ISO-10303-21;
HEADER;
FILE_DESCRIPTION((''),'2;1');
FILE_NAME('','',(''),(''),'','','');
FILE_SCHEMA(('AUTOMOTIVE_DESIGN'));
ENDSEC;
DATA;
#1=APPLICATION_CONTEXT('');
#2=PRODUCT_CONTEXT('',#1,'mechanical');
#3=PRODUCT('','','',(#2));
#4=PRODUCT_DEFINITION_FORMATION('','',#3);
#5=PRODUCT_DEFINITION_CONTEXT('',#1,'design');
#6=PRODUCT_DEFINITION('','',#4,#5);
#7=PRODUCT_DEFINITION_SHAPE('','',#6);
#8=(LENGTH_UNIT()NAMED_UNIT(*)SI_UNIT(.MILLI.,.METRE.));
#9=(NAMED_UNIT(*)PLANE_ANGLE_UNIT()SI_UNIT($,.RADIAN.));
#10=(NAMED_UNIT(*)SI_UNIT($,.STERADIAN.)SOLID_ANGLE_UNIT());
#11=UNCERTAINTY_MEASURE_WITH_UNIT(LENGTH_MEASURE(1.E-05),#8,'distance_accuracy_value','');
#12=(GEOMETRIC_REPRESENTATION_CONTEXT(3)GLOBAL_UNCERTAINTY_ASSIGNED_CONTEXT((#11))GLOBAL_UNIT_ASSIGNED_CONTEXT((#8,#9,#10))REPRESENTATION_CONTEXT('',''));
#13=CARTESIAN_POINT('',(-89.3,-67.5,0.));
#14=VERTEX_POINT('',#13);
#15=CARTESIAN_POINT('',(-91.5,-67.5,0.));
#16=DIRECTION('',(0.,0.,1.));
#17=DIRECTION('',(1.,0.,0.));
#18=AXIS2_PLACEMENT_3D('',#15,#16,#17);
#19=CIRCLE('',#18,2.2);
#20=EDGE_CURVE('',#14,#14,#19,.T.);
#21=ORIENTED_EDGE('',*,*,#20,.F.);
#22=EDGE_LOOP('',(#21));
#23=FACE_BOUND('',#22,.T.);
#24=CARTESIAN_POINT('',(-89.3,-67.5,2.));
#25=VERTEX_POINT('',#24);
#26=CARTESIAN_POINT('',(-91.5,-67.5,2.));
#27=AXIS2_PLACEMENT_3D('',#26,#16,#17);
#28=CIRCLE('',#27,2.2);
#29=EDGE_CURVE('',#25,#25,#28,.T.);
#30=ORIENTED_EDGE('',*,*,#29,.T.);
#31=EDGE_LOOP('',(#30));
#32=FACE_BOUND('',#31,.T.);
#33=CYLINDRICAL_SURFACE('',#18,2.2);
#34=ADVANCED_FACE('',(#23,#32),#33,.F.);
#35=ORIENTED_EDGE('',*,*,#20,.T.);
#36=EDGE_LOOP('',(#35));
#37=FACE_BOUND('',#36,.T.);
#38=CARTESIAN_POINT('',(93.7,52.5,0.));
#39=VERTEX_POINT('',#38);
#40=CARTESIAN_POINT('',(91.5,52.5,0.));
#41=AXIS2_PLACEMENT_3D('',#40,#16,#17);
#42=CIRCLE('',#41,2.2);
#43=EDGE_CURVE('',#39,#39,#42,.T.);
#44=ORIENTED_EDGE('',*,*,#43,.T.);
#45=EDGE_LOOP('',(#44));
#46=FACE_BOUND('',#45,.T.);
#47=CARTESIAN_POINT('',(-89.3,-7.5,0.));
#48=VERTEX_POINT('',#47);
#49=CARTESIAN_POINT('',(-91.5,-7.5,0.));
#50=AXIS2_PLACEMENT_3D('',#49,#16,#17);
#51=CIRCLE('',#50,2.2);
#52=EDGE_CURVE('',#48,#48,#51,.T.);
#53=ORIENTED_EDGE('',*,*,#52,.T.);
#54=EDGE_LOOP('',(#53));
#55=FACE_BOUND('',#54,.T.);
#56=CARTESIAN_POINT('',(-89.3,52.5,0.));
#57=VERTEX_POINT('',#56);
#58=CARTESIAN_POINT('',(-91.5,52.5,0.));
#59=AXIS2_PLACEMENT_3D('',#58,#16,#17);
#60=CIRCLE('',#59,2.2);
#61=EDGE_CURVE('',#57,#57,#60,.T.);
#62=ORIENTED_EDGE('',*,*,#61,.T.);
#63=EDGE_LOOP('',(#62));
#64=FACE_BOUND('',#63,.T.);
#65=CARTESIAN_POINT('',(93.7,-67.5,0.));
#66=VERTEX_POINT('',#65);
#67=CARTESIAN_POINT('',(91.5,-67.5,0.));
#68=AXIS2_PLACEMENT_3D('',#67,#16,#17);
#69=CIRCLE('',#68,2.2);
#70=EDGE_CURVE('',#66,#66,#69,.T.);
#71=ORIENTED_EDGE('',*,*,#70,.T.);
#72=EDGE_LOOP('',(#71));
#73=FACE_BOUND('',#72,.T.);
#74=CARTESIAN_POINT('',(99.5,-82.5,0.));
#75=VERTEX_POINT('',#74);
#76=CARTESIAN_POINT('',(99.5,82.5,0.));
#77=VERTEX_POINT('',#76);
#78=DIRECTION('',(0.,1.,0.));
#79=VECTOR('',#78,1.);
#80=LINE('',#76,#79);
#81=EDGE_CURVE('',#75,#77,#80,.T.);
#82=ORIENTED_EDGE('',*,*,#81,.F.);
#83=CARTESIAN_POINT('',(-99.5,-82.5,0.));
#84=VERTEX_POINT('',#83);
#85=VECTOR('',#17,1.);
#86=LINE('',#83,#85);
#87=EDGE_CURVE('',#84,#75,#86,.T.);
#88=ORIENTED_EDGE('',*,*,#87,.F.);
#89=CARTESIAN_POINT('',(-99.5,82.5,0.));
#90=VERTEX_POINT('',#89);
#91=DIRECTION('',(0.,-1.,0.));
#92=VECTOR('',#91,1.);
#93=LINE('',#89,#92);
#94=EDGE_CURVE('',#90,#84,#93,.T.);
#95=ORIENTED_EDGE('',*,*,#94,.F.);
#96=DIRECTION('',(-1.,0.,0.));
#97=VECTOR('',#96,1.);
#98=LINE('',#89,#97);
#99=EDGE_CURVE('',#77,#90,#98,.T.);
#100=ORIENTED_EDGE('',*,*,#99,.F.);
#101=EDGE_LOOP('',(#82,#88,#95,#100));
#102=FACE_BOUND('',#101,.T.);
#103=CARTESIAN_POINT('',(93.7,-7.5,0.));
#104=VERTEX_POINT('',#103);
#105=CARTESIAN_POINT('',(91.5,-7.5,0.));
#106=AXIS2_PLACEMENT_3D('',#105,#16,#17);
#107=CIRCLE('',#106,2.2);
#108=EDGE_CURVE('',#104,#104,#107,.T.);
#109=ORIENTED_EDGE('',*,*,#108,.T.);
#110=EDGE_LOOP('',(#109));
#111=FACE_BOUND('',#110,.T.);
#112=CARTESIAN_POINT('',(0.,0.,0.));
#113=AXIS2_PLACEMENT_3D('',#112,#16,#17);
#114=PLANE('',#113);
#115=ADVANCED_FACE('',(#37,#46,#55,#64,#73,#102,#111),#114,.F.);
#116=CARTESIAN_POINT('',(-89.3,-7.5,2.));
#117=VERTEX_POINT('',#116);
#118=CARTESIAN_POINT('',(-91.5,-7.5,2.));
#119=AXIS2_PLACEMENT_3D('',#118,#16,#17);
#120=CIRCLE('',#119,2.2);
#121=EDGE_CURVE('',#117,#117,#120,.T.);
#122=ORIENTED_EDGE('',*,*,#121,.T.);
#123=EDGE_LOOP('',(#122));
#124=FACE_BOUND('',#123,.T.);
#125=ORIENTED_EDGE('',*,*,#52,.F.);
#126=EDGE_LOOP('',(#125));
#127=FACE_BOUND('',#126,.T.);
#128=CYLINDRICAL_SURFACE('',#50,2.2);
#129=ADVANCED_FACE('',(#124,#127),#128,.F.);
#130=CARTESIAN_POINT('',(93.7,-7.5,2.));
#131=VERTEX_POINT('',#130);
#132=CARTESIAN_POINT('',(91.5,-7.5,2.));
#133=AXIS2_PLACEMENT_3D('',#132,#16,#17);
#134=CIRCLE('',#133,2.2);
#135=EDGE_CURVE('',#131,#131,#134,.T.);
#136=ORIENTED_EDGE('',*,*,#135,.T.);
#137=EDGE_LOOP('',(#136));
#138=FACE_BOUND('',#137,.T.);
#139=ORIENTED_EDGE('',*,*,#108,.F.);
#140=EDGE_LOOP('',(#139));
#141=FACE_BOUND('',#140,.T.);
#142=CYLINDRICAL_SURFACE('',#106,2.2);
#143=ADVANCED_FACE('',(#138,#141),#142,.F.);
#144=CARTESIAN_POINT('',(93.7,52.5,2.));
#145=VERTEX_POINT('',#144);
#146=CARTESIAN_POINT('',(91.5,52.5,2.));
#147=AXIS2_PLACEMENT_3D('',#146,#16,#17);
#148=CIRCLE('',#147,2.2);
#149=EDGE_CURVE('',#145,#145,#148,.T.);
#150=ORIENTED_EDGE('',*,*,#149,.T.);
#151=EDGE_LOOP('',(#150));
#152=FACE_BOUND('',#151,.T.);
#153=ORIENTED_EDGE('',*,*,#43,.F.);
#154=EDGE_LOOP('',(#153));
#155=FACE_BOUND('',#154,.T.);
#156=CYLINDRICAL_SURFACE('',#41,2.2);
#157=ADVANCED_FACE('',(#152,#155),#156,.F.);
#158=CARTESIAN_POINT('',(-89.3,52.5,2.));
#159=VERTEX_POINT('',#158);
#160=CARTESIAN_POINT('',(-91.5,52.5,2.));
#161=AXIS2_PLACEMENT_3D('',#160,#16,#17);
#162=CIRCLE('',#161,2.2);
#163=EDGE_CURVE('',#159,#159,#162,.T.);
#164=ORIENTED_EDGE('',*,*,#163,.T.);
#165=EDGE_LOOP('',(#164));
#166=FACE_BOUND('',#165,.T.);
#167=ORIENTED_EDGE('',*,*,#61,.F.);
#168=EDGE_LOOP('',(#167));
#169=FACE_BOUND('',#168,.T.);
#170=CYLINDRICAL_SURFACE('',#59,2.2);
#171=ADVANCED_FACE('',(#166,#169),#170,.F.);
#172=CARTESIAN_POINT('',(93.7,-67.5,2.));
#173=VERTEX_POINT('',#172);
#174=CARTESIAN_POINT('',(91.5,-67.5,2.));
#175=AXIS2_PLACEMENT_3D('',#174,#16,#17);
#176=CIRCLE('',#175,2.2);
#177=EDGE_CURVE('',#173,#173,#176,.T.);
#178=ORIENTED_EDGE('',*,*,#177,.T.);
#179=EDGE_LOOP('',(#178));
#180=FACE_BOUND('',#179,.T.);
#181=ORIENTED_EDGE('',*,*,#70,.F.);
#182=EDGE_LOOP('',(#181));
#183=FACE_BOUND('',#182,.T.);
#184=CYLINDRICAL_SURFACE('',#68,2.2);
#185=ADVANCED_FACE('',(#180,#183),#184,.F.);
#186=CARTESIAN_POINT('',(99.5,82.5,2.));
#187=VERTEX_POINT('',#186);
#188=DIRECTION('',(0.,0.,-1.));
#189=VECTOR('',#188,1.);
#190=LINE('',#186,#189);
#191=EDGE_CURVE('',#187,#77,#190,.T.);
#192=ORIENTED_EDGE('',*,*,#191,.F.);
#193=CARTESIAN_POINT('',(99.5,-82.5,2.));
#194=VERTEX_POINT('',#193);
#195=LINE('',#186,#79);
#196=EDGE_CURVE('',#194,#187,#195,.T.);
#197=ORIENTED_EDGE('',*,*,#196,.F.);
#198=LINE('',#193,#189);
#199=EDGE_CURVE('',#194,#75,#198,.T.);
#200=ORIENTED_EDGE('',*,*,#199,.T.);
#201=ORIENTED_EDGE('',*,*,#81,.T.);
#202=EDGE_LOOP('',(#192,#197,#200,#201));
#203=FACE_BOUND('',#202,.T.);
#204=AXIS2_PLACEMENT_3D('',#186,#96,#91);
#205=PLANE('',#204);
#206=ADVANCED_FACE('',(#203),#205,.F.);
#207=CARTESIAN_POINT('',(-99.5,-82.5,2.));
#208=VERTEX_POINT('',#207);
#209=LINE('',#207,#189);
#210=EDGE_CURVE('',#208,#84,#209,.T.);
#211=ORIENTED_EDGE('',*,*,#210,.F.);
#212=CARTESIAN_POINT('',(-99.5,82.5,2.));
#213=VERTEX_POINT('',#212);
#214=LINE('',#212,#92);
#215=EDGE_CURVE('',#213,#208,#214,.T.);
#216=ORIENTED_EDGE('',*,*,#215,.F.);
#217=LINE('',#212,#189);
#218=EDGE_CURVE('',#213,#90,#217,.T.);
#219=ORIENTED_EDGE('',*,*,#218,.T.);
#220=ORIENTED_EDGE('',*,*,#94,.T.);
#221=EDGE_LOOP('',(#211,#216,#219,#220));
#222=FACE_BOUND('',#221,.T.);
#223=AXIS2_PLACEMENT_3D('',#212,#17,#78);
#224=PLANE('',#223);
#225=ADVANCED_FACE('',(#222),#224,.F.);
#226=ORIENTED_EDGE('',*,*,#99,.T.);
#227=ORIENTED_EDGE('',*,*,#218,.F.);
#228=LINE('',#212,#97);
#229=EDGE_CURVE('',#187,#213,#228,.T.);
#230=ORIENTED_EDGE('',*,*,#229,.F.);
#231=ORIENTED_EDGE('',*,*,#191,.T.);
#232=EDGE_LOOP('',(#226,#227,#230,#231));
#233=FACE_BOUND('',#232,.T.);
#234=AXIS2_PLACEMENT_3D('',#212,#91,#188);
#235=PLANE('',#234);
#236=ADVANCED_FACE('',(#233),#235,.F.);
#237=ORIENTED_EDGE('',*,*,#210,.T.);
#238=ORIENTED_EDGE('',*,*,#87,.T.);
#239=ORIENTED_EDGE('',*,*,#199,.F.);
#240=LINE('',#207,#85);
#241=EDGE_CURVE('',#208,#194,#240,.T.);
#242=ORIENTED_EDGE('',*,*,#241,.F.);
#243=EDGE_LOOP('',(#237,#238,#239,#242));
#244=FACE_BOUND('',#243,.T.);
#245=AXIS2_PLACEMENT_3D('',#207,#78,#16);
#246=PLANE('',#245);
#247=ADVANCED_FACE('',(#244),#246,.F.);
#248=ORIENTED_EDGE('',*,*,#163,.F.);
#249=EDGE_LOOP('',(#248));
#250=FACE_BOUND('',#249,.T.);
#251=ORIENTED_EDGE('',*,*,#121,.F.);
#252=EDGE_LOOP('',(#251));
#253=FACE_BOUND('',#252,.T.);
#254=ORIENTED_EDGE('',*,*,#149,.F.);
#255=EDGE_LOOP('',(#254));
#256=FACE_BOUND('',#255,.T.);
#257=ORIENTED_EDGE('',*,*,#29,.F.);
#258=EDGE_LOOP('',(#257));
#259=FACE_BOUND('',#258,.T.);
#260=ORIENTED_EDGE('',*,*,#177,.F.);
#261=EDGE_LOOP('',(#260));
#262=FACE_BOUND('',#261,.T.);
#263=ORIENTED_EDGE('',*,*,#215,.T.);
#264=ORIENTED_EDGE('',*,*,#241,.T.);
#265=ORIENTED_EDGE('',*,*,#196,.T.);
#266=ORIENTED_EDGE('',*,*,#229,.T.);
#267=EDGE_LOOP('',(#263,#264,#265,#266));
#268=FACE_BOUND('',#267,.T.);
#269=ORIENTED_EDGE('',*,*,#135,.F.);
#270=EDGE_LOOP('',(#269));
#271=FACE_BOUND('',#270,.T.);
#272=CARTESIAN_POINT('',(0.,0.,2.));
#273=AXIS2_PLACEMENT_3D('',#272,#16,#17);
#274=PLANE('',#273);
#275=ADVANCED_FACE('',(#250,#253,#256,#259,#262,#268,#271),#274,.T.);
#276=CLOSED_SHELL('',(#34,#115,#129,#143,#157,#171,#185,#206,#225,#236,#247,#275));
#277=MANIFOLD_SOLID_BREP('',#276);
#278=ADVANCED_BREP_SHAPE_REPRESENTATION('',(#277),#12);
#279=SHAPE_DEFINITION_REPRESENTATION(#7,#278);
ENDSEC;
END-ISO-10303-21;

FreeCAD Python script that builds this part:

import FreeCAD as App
import Part
import Sketcher

V = App.Vector
Q = App.Units.Quantity

doc = App.newDocument("Part")
params = doc.addObject("Spreadsheet::Sheet", "Params")
for row, (alias, value) in enumerate([
    ("sketch1_width", "199 mm"),
    ("sketch1_height", "165 mm"),
    ("pad1_length", "2 mm"),
    ("sketch2_diameter", "4.4 mm"),
    ("pocket1_length", "2 mm"),
    ("sketch3_diameter", "4.4 mm"),
    ("pocket2_length", "2 mm"),
], start=1):
    params.set(f"A{row}", alias)
    params.set(f"B{row}", "=" + value)
    params.setAlias(f"B{row}", alias)

body = doc.addObject("PartDesign::Body", "Body")

# Sketch on XY plane
sketch1 = doc.addObject("Sketcher::SketchObject", "Sketch")
body.addObject(sketch1)
sketch1.AttachmentSupport = (doc.XY_Plane, [""])
sketch1.MapMode = "FlatFace"
sketch1.addGeometry(Part.LineSegment(V(-100, 82, 0), V(-100, -82, 0)), False)
sketch1.addGeometry(Part.LineSegment(V(-100, -82, 0), V(100, -82, 0)), False)
sketch1.addGeometry(Part.LineSegment(V(100, -82, 0), V(100, 82, 0)), False)
sketch1.addGeometry(Part.LineSegment(V(100, 82, 0), V(-100, 82, 0)), False)
sketch1.addConstraint(Sketcher.Constraint("Coincident", 0, 2, 1, 1))
sketch1.addConstraint(Sketcher.Constraint("Coincident", 1, 2, 2, 1))
sketch1.addConstraint(Sketcher.Constraint("Coincident", 2, 2, 3, 1))
sketch1.addConstraint(Sketcher.Constraint("Coincident", 3, 2, 0, 1))
sketch1.addConstraint(Sketcher.Constraint("Vertical", 0))
sketch1.addConstraint(Sketcher.Constraint("Horizontal", 1))
sketch1.addConstraint(Sketcher.Constraint("Vertical", 2))
sketch1.addConstraint(Sketcher.Constraint("Horizontal", 3))
sketch1.addConstraint(Sketcher.Constraint("Symmetric", 0, 2, 2, 2, -1, 1))
sketch1.addConstraint(Sketcher.Constraint("DistanceX", 1, 1, 1, 2, Q("199 mm")))
sketch1.addConstraint(Sketcher.Constraint("DistanceY", 0, 2, 0, 1, Q("165 mm")))
sketch1.setExpression("Constraints[9]", "Params.sketch1_width")
sketch1.setExpression("Constraints[10]", "Params.sketch1_height")
pad1 = doc.addObject("PartDesign::Pad", "Pad")
body.addObject(pad1)
pad1.Profile = sketch1
pad1.setExpression("Length", "Params.pad1_length")

# Sketch on XY plane
sketch2 = doc.addObject("Sketcher::SketchObject", "Sketch001")
body.addObject(sketch2)
sketch2.AttachmentSupport = (doc.XY_Plane, [""])
sketch2.MapMode = "FlatFace"
sketch2.AttachmentOffset = App.Placement(V(0, 0, 2), App.Rotation())
sketch2.addGeometry(Part.Circle(V(-91.5, -67.5, 0), V(0, 0, 1), 2.2), False)
sketch2.addGeometry(Part.Circle(V(-91.5, -7.5, 0), V(0, 0, 1), 2.2), False)
sketch2.addGeometry(Part.Circle(V(-91.5, 52.5, 0), V(0, 0, 1), 2.2), False)
sketch2.addConstraint(Sketcher.Constraint("Equal", 0, 1))
sketch2.addConstraint(Sketcher.Constraint("Equal", 1, 2))
sketch2.addConstraint(Sketcher.Constraint("Vertical", 0, 3, 1, 3))
sketch2.addConstraint(Sketcher.Constraint("Vertical", 1, 3, 2, 3))
sketch2.addConstraint(Sketcher.Constraint("Diameter", 0, Q("4.4 mm")))
sketch2.addConstraint(Sketcher.Constraint("DistanceY", 0, 3, 1, 3, Q("60 mm")))
sketch2.addConstraint(Sketcher.Constraint("DistanceY", 1, 3, 2, 3, Q("60 mm")))
sketch2.addConstraint(Sketcher.Constraint("DistanceX", 0, 3, -1, 1, Q("91.5 mm")))
sketch2.addConstraint(Sketcher.Constraint("DistanceY", 0, 3, -1, 1, Q("67.5 mm")))
sketch2.setExpression("Constraints[4]", "Params.sketch2_diameter")
pocket1 = doc.addObject("PartDesign::Pocket", "Pocket")
body.addObject(pocket1)
pocket1.Profile = sketch2
pocket1.setExpression("Length", "Params.pocket1_length")

# Sketch on XY plane
sketch3 = doc.addObject("Sketcher::SketchObject", "Sketch002")
body.addObject(sketch3)
sketch3.AttachmentSupport = (doc.XY_Plane, [""])
sketch3.MapMode = "FlatFace"
sketch3.AttachmentOffset = App.Placement(V(0, 0, 2), App.Rotation())
sketch3.addGeometry(Part.Circle(V(91.5, -67.5, 0), V(0, 0, 1), 2.2), False)
sketch3.addGeometry(Part.Circle(V(91.5, -7.5, 0), V(0, 0, 1), 2.2), False)
sketch3.addGeometry(Part.Circle(V(91.5, 52.5, 0), V(0, 0, 1), 2.2), False)
sketch3.addConstraint(Sketcher.Constraint("Equal", 0, 1))
sketch3.addConstraint(Sketcher.Constraint("Equal", 1, 2))
sketch3.addConstraint(Sketcher.Constraint("Vertical", 0, 3, 1, 3))
sketch3.addConstraint(Sketcher.Constraint("Vertical", 1, 3, 2, 3))
sketch3.addConstraint(Sketcher.Constraint("Diameter", 0, Q("4.4 mm")))
sketch3.addConstraint(Sketcher.Constraint("DistanceY", 0, 3, 1, 3, Q("60 mm")))
sketch3.addConstraint(Sketcher.Constraint("DistanceY", 1, 3, 2, 3, Q("60 mm")))
sketch3.addConstraint(Sketcher.Constraint("DistanceX", -1, 1, 0, 3, Q("91.5 mm")))
sketch3.addConstraint(Sketcher.Constraint("DistanceY", 0, 3, -1, 1, Q("67.5 mm")))
sketch3.setExpression("Constraints[4]", "Params.sketch3_diameter")
pocket2 = doc.addObject("PartDesign::Pocket", "Pocket001")
body.addObject(pocket2)
pocket2.Profile = sketch3
pocket2.setExpression("Length", "Params.pocket2_length")

doc.recompute()
